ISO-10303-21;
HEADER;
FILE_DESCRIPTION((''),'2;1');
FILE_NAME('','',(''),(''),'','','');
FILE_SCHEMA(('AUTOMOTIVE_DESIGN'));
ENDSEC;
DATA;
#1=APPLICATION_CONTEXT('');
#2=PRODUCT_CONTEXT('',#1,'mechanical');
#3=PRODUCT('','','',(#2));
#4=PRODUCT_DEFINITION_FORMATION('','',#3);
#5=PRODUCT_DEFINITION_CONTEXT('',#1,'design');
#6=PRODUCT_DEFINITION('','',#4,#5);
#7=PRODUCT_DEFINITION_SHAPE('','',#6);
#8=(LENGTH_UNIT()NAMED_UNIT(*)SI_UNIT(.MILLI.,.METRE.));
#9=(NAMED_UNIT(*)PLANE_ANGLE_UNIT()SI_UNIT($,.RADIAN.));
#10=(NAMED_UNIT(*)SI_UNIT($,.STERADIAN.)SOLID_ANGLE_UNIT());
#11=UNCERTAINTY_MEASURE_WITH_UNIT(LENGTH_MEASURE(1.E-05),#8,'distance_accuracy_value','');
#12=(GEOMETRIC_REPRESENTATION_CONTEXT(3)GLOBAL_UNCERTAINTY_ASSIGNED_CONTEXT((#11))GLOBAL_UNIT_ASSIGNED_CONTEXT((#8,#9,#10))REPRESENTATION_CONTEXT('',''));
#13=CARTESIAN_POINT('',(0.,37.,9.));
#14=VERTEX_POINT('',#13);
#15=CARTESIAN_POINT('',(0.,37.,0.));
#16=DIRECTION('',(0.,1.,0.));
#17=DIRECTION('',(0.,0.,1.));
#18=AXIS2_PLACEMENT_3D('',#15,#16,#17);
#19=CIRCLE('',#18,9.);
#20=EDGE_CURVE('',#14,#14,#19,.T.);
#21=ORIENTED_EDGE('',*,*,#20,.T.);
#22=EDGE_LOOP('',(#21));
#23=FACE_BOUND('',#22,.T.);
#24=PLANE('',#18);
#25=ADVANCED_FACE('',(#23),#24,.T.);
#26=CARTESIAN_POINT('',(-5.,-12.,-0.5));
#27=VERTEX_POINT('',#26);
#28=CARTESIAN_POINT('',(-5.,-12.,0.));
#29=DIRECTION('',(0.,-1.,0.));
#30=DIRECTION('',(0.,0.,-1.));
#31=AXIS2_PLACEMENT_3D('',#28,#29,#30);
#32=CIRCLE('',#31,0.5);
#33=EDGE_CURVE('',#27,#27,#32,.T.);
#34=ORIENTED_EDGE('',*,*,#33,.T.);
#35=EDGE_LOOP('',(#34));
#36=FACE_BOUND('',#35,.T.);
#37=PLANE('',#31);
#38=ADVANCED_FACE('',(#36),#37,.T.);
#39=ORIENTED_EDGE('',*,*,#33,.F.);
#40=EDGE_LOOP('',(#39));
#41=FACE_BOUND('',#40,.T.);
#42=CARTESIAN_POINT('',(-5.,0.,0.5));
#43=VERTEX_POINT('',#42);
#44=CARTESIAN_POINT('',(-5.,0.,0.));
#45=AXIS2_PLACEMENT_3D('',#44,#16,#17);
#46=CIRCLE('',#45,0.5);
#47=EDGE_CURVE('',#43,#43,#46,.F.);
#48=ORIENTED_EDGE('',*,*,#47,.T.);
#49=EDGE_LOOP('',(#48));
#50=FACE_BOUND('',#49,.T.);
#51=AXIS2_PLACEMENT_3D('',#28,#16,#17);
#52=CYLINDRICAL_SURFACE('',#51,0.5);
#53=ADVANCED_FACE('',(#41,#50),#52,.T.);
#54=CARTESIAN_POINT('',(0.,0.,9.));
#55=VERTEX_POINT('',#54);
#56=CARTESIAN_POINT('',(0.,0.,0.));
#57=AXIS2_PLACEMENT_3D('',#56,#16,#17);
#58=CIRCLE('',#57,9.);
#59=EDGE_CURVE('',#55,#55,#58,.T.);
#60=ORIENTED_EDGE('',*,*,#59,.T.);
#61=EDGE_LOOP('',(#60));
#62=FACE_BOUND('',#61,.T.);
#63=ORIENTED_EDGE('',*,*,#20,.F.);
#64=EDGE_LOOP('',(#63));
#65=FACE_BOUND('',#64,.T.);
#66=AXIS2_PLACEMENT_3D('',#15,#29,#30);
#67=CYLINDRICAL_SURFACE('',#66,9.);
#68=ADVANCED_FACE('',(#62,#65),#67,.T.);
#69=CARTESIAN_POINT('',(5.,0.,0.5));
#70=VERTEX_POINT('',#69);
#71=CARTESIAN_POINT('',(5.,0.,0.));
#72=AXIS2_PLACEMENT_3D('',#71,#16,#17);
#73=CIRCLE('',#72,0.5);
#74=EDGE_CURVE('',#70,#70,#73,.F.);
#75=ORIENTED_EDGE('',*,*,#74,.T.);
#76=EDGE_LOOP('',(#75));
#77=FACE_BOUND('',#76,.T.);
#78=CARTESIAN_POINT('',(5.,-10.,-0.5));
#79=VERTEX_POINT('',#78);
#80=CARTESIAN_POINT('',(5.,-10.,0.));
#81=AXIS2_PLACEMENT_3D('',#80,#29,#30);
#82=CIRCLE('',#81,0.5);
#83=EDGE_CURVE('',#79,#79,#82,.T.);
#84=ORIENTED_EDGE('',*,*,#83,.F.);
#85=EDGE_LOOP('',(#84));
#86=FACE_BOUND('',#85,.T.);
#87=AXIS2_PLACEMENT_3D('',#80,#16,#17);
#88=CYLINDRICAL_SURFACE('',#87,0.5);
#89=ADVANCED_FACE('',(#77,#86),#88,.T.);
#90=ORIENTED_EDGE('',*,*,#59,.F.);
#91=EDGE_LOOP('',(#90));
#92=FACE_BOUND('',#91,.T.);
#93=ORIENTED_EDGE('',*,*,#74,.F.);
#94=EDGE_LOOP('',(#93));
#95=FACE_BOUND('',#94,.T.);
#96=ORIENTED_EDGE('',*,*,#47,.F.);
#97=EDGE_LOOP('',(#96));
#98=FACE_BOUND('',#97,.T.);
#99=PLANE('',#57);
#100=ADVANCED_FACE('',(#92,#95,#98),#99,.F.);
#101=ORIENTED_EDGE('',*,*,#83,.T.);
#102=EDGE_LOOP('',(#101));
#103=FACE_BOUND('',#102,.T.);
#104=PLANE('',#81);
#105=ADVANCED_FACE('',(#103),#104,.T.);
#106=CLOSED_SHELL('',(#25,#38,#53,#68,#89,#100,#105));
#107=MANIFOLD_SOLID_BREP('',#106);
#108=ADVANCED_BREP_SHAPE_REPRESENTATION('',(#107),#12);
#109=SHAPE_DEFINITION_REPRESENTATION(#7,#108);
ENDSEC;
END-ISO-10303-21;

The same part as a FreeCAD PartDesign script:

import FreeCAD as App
import Part
import Sketcher

doc = App.newDocument("Part")
body = doc.addObject("PartDesign::Body", "Body")

# Sketch on XZ plane
sketch1 = body.newObject("Sketcher::SketchObject", "Sketch")
sketch1.AttachmentSupport = (doc.getObject("XZ_Plane"), [""])
sketch1.MapMode = "FlatFace"
sketch1.addGeometry(Part.Circle(App.Vector(0, 0, 0), App.Vector(0, 0, 1), 9), False)
sketch1.addConstraint([
    Sketcher.Constraint("Coincident", 0, 3, -1, 1),
    Sketcher.Constraint("Diameter", 0, 18.0),
])
pad1 = body.newObject("PartDesign::Pad", "Pad")
pad1.Profile = sketch1
pad1.Length = 37
pad1.Reversed = True

# Sketch on XZ plane
sketch2 = body.newObject("Sketcher::SketchObject", "Sketch001")
sketch2.AttachmentSupport = (doc.getObject("XZ_Plane"), [""])
sketch2.MapMode = "FlatFace"
sketch2.addGeometry(Part.Circle(App.Vector(-5, 0, 0), App.Vector(0, 0, 1), 0.5), False)
sketch2.addConstraint([
    Sketcher.Constraint("PointOnObject", 0, 3, -1),
    Sketcher.Constraint("Diameter", 0, 1.0),
    Sketcher.Constraint("DistanceX", 0, 3, -1, 1, 5.0),
])
pad2 = body.newObject("PartDesign::Pad", "Pad001")
pad2.Profile = sketch2
pad2.Length = 12

# Sketch on XZ plane
sketch3 = body.newObject("Sketcher::SketchObject", "Sketch002")
sketch3.AttachmentSupport = (doc.getObject("XZ_Plane"), [""])
sketch3.MapMode = "FlatFace"
sketch3.addGeometry(Part.Circle(App.Vector(5, 0, 0), App.Vector(0, 0, 1), 0.5), False)
sketch3.addConstraint([
    Sketcher.Constraint("PointOnObject", 0, 3, -1),
    Sketcher.Constraint("Diameter", 0, 1.0),
    Sketcher.Constraint("DistanceX", -1, 1, 0, 3, 5.0),
])
pad3 = body.newObject("PartDesign::Pad", "Pad002")
pad3.Profile = sketch3
pad3.Length = 10

doc.recompute()
